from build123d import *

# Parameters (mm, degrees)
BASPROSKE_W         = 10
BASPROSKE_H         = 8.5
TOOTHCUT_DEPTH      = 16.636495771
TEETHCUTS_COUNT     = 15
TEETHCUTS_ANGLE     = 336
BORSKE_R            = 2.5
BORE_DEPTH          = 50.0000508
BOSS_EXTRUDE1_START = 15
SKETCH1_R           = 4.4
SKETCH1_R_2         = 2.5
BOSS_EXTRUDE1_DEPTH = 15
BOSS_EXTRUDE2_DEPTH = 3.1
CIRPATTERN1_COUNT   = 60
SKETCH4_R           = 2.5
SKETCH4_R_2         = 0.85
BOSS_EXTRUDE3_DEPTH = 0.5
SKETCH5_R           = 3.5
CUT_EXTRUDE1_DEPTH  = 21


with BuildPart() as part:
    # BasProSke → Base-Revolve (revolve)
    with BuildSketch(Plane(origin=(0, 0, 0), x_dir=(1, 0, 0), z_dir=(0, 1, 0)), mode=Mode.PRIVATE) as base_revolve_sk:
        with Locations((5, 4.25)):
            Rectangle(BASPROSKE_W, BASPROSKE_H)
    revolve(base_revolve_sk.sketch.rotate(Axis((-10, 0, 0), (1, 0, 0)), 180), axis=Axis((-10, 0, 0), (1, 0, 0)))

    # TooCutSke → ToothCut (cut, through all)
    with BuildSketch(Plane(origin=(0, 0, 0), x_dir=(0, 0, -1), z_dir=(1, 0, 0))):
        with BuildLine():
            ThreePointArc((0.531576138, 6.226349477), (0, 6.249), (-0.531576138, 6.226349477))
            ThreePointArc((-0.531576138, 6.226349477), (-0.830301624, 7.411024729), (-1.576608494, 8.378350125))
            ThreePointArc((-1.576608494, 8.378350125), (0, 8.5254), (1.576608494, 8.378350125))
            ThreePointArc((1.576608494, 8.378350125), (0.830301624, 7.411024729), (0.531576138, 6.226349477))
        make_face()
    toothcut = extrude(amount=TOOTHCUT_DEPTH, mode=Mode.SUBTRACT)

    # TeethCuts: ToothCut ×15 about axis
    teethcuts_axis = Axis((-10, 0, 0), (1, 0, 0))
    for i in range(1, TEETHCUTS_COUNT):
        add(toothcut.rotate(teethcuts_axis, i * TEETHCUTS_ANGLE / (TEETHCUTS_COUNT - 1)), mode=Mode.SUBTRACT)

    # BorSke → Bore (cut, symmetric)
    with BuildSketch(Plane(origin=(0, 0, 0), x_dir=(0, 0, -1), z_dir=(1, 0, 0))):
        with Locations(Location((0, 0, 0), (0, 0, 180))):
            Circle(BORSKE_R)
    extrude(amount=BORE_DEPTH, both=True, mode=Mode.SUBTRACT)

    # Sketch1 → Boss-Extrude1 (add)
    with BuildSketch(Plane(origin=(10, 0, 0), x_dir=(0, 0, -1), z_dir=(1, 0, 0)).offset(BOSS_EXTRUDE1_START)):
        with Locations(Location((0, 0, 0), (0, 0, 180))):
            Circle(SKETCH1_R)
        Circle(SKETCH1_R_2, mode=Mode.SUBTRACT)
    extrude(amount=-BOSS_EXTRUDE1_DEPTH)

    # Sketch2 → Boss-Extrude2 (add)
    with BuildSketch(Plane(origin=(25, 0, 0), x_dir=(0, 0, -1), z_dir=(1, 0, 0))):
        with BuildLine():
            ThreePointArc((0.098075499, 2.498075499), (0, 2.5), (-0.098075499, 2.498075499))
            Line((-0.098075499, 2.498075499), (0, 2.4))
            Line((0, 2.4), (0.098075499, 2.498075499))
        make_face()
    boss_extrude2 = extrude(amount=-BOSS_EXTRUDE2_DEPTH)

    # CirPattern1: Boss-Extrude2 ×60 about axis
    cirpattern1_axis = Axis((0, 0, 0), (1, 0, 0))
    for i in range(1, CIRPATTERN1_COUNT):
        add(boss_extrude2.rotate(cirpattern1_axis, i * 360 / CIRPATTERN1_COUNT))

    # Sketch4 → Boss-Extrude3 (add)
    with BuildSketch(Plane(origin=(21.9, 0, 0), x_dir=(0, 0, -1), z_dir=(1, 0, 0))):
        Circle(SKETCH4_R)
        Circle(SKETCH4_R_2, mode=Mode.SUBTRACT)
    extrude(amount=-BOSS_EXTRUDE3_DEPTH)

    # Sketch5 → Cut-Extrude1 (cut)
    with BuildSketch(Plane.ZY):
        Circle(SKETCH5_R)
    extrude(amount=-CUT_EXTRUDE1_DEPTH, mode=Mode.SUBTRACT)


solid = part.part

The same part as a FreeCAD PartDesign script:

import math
import FreeCAD as App
import Part
import Sketcher
Q = App.Units.Quantity


def add_polygon(sketch, points):
    """Adds a closed chain of lines whose ends are joined by coincident constraints."""
    first, n = sketch.GeometryCount, len(points)
    for a, b in zip(points, points[1:] + points[:1]):
        sketch.addGeometry(Part.LineSegment(App.Vector(*a, 0), App.Vector(*b, 0)), False)
    for i in range(n):
        sketch.addConstraint(Sketcher.Constraint("Coincident", first + i, 2, first + (i + 1) % n, 1))

doc = App.newDocument("Part")
body = doc.addObject("PartDesign::Body", "Body")

sketch1 = body.newObject("Sketcher::SketchObject", "Sketch")
sketch1.AttachmentSupport = (doc.getObject("XZ_Plane"), [""])
sketch1.MapMode = "FlatFace"
add_polygon(sketch1, [(0, -8.5), (0, 0), (10, 0), (10, -8.5)])
sketch1.addConstraint(Sketcher.Constraint("Vertical", 0))
sketch1.addConstraint(Sketcher.Constraint("Horizontal", 1))
sketch1.addConstraint(Sketcher.Constraint("Vertical", 2))
sketch1.addConstraint(Sketcher.Constraint("Horizontal", 3))
sketch1.addConstraint(Sketcher.Constraint("Coincident", 0, 2, -1, 1))
sketch1.addConstraint(Sketcher.Constraint("DistanceX", 1, 1, 1, 2, Q("10 mm")))
sketch1.addConstraint(Sketcher.Constraint("DistanceY", 0, 1, 0, 2, Q("8.5 mm")))
revolution = body.newObject("PartDesign::Revolution", "Revolution")
revolution.Profile = sketch1
revolution.ReferenceAxis = (sketch1, ["H_Axis"])
revolution.Angle = 360

sketch2 = body.newObject("Sketcher::SketchObject", "Sketch001")
sketch2.AttachmentSupport = (doc.getObject("YZ_Plane"), [""])
sketch2.MapMode = "FlatFace"
sketch2.addGeometry(Part.ArcOfCircle(Part.Circle(App.Vector(0, 0, 0), App.Vector(0, 0, 1), 6.249), math.radians(-4.879808), math.radians(4.879808)), False)
sketch2.addGeometry(Part.ArcOfCircle(Part.Circle(App.Vector(6.100541, -3.528937, 0), App.Vector(0, 0, 1), 3), math.radians(40.600148), math.radians(87.596535)), False)
sketch2.addGeometry(Part.ArcOfCircle(Part.Circle(App.Vector(0, 0, 0), App.Vector(0, 0, 1), 8.5254), math.radians(-10.657094), math.radians(10.657094)), False)
sketch2.addGeometry(Part.ArcOfCircle(Part.Circle(App.Vector(6.100541, 3.528937, 0), App.Vector(0, 0, 1), 3), math.radians(-87.596535), math.radians(-40.600148)), False)
sketch2.addConstraint(Sketcher.Constraint("Coincident", 0, 1, 1, 2))
sketch2.addConstraint(Sketcher.Constraint("Coincident", 1, 1, 2, 1))
sketch2.addConstraint(Sketcher.Constraint("Coincident", 2, 2, 3, 2))
sketch2.addConstraint(Sketcher.Constraint("Coincident", 3, 1, 0, 2))
sketch2.addConstraint(Sketcher.Constraint("Coincident", 0, 3, -1, 1))
sketch2.addConstraint(Sketcher.Constraint("Coincident", 2, 3, -1, 1))
sketch2.addConstraint(Sketcher.Constraint("Equal", 1, 3))
sketch2.addConstraint(Sketcher.Constraint("Symmetric", 1, 3, 3, 3, -1))
sketch2.addConstraint(Sketcher.Constraint("Radius", 1, Q("3 mm")))
sketch2.addConstraint(Sketcher.Constraint("Radius", 0, Q("6.249 mm")))
sketch2.addConstraint(Sketcher.Constraint("Radius", 2, Q("8.5254 mm")))
sketch2.addConstraint(Sketcher.Constraint("DistanceX", 0, 1, 1, 1, Q("2.152001 mm")))
sketch2.addConstraint(Sketcher.Constraint("DistanceX", -1, 1, 1, 3, Q("6.100541 mm")))
pocket1 = body.newObject("PartDesign::Pocket", "Pocket")
pocket1.Profile = sketch2
pocket1.Type = "ThroughAll"
pocket1.Reversed = True
doc.recompute()

polarpattern = body.newObject("PartDesign::PolarPattern", "PolarPattern")
polarpattern.Originals = [pocket1]
polarpattern.Axis = (doc.getObject("X_Axis"), [""])
polarpattern.Angle = 360
polarpattern.Occurrences = 15
body.Tip = polarpattern

sketch3 = body.newObject("Sketcher::SketchObject", "Sketch002")
sketch3.AttachmentSupport = (doc.getObject("YZ_Plane"), [""])
sketch3.MapMode = "FlatFace"
sketch3.addGeometry(Part.Circle(App.Vector(0, 0, 0), App.Vector(0, 0, 1), 2.5), False)
sketch3.addConstraint(Sketcher.Constraint("Coincident", 0, 3, -1, 1))
sketch3.addConstraint(Sketcher.Constraint("Diameter", 0, Q("5 mm")))
pocket2 = body.newObject("PartDesign::Pocket", "Pocket001")
pocket2.Profile = sketch3
pocket2.Length = 100.000102
pocket2.Midplane = True

sketch4 = body.newObject("Sketcher::SketchObject", "Sketch003")
sketch4.AttachmentSupport = (doc.getObject("YZ_Plane"), [""])
sketch4.MapMode = "FlatFace"
sketch4.AttachmentOffset = App.Placement(App.Vector(0, 0, 25), App.Rotation())
sketch4.addGeometry(Part.Circle(App.Vector(0, 0, 0), App.Vector(0, 0, 1), 4.4), False)
sketch4.addGeometry(Part.Circle(App.Vector(0, 0, 0), App.Vector(0, 0, 1), 2.5), False)
sketch4.addConstraint(Sketcher.Constraint("Coincident", 0, 3, -1, 1))
sketch4.addConstraint(Sketcher.Constraint("Coincident", 1, 3, -1, 1))
sketch4.addConstraint(Sketcher.Constraint("Diameter", 1, Q("5 mm")))
sketch4.addConstraint(Sketcher.Constraint("Diameter", 0, Q("8.8 mm")))
pad1 = body.newObject("PartDesign::Pad", "Pad")
pad1.Profile = sketch4
pad1.Length = 15
pad1.Reversed = True

sketch5 = body.newObject("Sketcher::SketchObject", "Sketch004")
sketch5.AttachmentSupport = (doc.getObject("YZ_Plane"), [""])
sketch5.MapMode = "FlatFace"
sketch5.AttachmentOffset = App.Placement(App.Vector(0, 0, 25), App.Rotation())
sketch5.addGeometry(Part.ArcOfCircle(Part.Circle(App.Vector(-0.000001, 0, 0), App.Vector(0, 0, 1), 2.500001), math.radians(-2.248301), math.radians(2.248301)), False)
sketch5.addGeometry(Part.LineSegment(App.Vector(2.498075, 0.098075, 0), App.Vector(2.4, 0, 0)), False)
sketch5.addGeometry(Part.LineSegment(App.Vector(2.4, 0, 0), App.Vector(2.498075, -0.098075, 0)), False)
sketch5.addConstraint(Sketcher.Constraint("Coincident", 0, 2, 1, 1))
sketch5.addConstraint(Sketcher.Constraint("Coincident", 1, 2, 2, 1))
sketch5.addConstraint(Sketcher.Constraint("Coincident", 2, 2, 0, 1))
sketch5.addConstraint(Sketcher.Constraint("Coincident", 0, 3, -1, 1))
sketch5.addConstraint(Sketcher.Constraint("PointOnObject", 1, 2, -1))
sketch5.addConstraint(Sketcher.Constraint("Perpendicular", 1, 2))
sketch5.addConstraint(Sketcher.Constraint("Vertical", 0, 2, 2, 2))
sketch5.addConstraint(Sketcher.Constraint("Radius", 0, Q("2.500001 mm")))
sketch5.addConstraint(Sketcher.Constraint("DistanceX", -1, 1, 1, 2, Q("2.4 mm")))
pad2 = body.newObject("PartDesign::Pad", "Pad001")
pad2.Profile = sketch5
pad2.Length = 3.1
pad2.Reversed = True
doc.recompute()

polarpattern2 = body.newObject("PartDesign::PolarPattern", "PolarPattern001")
polarpattern2.Originals = [pad2]
polarpattern2.Axis = (doc.getObject("X_Axis"), [""])
polarpattern2.Angle = 360
polarpattern2.Occurrences = 60
body.Tip = polarpattern2

sketch6 = body.newObject("Sketcher::SketchObject", "Sketch005")
sketch6.AttachmentSupport = (doc.getObject("YZ_Plane"), [""])
sketch6.MapMode = "FlatFace"
sketch6.AttachmentOffset = App.Placement(App.Vector(0, 0, 21.9), App.Rotation())
sketch6.addGeometry(Part.Circle(App.Vector(0, 0, 0), App.Vector(0, 0, 1), 2.5), False)
sketch6.addGeometry(Part.Circle(App.Vector(0, 0, 0), App.Vector(0, 0, 1), 0.85), False)
sketch6.addConstraint(Sketcher.Constraint("Coincident", 0, 3, -1, 1))
sketch6.addConstraint(Sketcher.Constraint("Coincident", 1, 3, -1, 1))
sketch6.addConstraint(Sketcher.Constraint("Diameter", 0, Q("5 mm")))
sketch6.addConstraint(Sketcher.Constraint("Diameter", 1, Q("1.7 mm")))
pad3 = body.newObject("PartDesign::Pad", "Pad002")
pad3.Profile = sketch6
pad3.Length = 0.5
pad3.Reversed = True

sketch7 = body.newObject("Sketcher::SketchObject", "Sketch006")
sketch7.AttachmentSupport = (doc.getObject("YZ_Plane"), [""])
sketch7.MapMode = "FlatFace"
sketch7.addGeometry(Part.Circle(App.Vector(0, 0, 0), App.Vector(0, 0, 1), 3.5), False)
sketch7.addConstraint(Sketcher.Constraint("Coincident", 0, 3, -1, 1))
sketch7.addConstraint(Sketcher.Constraint("Diameter", 0, Q("7 mm")))
pocket3 = body.newObject("PartDesign::Pocket", "Pocket002")
pocket3.Profile = sketch7
pocket3.Length = 21
pocket3.Reversed = True

doc.recompute()
